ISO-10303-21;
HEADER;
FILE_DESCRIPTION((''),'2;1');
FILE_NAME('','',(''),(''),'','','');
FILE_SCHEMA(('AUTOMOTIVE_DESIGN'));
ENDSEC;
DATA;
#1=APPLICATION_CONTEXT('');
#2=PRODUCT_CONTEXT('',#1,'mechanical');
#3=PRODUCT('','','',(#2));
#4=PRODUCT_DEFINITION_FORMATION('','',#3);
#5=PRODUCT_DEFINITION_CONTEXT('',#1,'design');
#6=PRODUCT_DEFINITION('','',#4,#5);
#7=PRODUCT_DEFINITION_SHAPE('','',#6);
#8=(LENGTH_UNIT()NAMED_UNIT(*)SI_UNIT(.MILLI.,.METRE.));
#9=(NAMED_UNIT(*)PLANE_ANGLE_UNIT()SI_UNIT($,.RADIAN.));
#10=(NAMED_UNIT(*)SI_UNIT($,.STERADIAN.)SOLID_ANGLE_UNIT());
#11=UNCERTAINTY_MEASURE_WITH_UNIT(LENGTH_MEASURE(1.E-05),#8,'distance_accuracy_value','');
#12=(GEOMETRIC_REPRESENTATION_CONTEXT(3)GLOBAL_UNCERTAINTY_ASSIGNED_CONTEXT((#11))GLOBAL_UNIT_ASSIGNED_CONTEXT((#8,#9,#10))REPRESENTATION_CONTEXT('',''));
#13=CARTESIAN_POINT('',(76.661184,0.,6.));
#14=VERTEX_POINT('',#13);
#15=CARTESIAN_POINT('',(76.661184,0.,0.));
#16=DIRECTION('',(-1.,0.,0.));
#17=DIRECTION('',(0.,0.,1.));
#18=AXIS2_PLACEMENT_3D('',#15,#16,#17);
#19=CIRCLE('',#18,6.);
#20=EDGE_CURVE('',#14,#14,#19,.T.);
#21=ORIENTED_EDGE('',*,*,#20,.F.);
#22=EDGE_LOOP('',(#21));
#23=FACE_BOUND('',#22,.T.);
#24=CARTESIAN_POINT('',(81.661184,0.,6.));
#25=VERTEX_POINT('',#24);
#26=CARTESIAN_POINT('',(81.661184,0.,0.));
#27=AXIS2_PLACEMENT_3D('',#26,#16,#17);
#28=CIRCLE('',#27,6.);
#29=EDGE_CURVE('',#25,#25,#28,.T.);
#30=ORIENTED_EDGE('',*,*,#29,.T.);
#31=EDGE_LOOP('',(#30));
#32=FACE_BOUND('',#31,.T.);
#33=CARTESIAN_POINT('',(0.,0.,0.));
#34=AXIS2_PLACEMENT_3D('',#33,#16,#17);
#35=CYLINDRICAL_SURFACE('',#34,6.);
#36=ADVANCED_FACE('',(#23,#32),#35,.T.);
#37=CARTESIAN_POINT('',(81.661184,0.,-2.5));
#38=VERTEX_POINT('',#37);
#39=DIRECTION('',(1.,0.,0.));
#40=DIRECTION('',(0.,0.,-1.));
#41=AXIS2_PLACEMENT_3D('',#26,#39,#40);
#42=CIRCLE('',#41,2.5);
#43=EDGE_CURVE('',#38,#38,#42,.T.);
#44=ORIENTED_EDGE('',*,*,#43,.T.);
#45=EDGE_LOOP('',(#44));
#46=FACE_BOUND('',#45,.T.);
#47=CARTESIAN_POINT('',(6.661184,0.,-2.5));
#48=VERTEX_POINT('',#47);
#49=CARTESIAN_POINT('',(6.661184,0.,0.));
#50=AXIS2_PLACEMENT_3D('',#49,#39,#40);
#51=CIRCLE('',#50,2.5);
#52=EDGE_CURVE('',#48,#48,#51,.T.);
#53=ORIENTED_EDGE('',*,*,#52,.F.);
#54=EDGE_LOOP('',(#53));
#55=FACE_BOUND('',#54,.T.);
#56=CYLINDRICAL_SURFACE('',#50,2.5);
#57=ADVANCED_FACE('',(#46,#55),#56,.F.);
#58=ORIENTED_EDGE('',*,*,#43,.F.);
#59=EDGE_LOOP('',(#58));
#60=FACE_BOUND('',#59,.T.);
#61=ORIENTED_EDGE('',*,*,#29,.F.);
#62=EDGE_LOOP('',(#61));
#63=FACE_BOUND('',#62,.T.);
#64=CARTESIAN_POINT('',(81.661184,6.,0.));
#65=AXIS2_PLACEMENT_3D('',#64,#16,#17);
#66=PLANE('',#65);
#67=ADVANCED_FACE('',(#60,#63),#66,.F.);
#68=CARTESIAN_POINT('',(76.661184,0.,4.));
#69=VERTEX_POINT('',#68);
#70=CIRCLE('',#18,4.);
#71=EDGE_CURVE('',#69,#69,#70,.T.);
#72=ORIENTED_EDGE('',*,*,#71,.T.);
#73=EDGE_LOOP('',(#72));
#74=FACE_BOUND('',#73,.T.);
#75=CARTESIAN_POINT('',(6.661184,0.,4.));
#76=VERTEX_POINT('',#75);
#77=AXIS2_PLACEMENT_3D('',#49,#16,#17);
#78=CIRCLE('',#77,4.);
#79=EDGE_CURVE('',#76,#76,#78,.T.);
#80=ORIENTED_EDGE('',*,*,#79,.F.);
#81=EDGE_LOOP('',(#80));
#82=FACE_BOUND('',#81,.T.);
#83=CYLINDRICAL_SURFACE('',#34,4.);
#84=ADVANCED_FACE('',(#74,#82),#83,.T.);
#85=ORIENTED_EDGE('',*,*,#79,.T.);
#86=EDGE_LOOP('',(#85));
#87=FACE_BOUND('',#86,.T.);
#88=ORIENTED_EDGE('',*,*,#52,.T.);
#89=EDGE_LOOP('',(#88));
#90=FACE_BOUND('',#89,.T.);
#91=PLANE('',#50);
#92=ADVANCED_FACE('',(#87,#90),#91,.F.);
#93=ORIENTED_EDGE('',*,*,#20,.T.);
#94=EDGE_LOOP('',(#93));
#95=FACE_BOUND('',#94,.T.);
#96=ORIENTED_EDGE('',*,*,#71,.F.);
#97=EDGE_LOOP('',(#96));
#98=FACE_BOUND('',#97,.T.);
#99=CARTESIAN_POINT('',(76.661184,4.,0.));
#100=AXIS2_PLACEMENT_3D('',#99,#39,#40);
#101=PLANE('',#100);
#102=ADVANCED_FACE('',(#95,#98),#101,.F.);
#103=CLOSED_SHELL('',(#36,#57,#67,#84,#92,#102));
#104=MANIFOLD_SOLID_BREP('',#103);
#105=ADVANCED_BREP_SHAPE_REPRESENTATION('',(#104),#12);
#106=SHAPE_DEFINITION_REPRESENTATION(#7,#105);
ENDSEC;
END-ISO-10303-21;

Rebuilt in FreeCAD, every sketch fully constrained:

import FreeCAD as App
import Part
import Sketcher
from FreeCAD import Vector
Q = App.Units.Quantity

doc = App.newDocument("Part")
body = doc.addObject("PartDesign::Body", "Body")

sketch1 = body.newObject("Sketcher::SketchObject", "Sketch")
sketch1.AttachmentSupport = (doc.getObject("XY_Plane"), [""])
sketch1.MapMode = "FlatFace"
sketch1.addGeometry([
    Part.LineSegment(Vector(6.661184, 4, 0), Vector(6.661184, 0, 0)),
    Part.LineSegment(Vector(6.661184, 0, 0), Vector(81.661184, 0, 0)),
    Part.LineSegment(Vector(81.661184, 0, 0), Vector(81.661184, 6, 0)),
    Part.LineSegment(Vector(81.661184, 6, 0), Vector(76.661184, 6, 0)),
    Part.LineSegment(Vector(76.661184, 6, 0), Vector(76.661184, 4, 0)),
    Part.LineSegment(Vector(76.661184, 4, 0), Vector(6.661184, 4, 0)),
], False)
sketch1.addConstraint([
    Sketcher.Constraint("Coincident", 0, 2, 1, 1),
    Sketcher.Constraint("Coincident", 1, 2, 2, 1),
    Sketcher.Constraint("Coincident", 2, 2, 3, 1),
    Sketcher.Constraint("Coincident", 3, 2, 4, 1),
    Sketcher.Constraint("Coincident", 4, 2, 5, 1),
    Sketcher.Constraint("Coincident", 5, 2, 0, 1),
    Sketcher.Constraint("Vertical", 0),
    Sketcher.Constraint("Horizontal", 1),
    Sketcher.Constraint("Vertical", 2),
    Sketcher.Constraint("Horizontal", 3),
    Sketcher.Constraint("Vertical", 4),
    Sketcher.Constraint("Horizontal", 5),
    Sketcher.Constraint("PointOnObject", 0, 2, -1),
    Sketcher.Constraint("DistanceX", 1, 1, 1, 2, Q("75 mm")),
    Sketcher.Constraint("DistanceX", 3, 2, 3, 1, Q("5 mm")),
    Sketcher.Constraint("DistanceY", 0, 2, 0, 1, Q("4 mm")),
    Sketcher.Constraint("DistanceY", 2, 1, 2, 2, Q("6 mm")),
    Sketcher.Constraint("DistanceX", -1, 1, 0, 2, Q("6.661184 mm")),
])
revolution = body.newObject("PartDesign::Revolution", "Revolution")
revolution.Profile = sketch1
revolution.ReferenceAxis = (sketch1, ["H_Axis"])
revolution.Angle = 360

sketch2 = body.newObject("Sketcher::SketchObject", "Sketch001")
sketch2.AttachmentSupport = (doc.getObject("YZ_Plane"), [""])
sketch2.MapMode = "FlatFace"
sketch2.AttachmentOffset = App.Placement(Vector(0, 0, 81.661184), App.Rotation())
sketch2.addGeometry(Part.Circle(Vector(0, 0, 0), Vector(0, 0, 1), 2.5), False)
sketch2.addConstraint([
    Sketcher.Constraint("Coincident", 0, 3, -1, 1),
    Sketcher.Constraint("Diameter", 0, Q("5 mm")),
])
pocket1 = body.newObject("PartDesign::Pocket", "Pocket")
pocket1.Profile = sketch2
pocket1.Type = "ThroughAll"

doc.recompute()
